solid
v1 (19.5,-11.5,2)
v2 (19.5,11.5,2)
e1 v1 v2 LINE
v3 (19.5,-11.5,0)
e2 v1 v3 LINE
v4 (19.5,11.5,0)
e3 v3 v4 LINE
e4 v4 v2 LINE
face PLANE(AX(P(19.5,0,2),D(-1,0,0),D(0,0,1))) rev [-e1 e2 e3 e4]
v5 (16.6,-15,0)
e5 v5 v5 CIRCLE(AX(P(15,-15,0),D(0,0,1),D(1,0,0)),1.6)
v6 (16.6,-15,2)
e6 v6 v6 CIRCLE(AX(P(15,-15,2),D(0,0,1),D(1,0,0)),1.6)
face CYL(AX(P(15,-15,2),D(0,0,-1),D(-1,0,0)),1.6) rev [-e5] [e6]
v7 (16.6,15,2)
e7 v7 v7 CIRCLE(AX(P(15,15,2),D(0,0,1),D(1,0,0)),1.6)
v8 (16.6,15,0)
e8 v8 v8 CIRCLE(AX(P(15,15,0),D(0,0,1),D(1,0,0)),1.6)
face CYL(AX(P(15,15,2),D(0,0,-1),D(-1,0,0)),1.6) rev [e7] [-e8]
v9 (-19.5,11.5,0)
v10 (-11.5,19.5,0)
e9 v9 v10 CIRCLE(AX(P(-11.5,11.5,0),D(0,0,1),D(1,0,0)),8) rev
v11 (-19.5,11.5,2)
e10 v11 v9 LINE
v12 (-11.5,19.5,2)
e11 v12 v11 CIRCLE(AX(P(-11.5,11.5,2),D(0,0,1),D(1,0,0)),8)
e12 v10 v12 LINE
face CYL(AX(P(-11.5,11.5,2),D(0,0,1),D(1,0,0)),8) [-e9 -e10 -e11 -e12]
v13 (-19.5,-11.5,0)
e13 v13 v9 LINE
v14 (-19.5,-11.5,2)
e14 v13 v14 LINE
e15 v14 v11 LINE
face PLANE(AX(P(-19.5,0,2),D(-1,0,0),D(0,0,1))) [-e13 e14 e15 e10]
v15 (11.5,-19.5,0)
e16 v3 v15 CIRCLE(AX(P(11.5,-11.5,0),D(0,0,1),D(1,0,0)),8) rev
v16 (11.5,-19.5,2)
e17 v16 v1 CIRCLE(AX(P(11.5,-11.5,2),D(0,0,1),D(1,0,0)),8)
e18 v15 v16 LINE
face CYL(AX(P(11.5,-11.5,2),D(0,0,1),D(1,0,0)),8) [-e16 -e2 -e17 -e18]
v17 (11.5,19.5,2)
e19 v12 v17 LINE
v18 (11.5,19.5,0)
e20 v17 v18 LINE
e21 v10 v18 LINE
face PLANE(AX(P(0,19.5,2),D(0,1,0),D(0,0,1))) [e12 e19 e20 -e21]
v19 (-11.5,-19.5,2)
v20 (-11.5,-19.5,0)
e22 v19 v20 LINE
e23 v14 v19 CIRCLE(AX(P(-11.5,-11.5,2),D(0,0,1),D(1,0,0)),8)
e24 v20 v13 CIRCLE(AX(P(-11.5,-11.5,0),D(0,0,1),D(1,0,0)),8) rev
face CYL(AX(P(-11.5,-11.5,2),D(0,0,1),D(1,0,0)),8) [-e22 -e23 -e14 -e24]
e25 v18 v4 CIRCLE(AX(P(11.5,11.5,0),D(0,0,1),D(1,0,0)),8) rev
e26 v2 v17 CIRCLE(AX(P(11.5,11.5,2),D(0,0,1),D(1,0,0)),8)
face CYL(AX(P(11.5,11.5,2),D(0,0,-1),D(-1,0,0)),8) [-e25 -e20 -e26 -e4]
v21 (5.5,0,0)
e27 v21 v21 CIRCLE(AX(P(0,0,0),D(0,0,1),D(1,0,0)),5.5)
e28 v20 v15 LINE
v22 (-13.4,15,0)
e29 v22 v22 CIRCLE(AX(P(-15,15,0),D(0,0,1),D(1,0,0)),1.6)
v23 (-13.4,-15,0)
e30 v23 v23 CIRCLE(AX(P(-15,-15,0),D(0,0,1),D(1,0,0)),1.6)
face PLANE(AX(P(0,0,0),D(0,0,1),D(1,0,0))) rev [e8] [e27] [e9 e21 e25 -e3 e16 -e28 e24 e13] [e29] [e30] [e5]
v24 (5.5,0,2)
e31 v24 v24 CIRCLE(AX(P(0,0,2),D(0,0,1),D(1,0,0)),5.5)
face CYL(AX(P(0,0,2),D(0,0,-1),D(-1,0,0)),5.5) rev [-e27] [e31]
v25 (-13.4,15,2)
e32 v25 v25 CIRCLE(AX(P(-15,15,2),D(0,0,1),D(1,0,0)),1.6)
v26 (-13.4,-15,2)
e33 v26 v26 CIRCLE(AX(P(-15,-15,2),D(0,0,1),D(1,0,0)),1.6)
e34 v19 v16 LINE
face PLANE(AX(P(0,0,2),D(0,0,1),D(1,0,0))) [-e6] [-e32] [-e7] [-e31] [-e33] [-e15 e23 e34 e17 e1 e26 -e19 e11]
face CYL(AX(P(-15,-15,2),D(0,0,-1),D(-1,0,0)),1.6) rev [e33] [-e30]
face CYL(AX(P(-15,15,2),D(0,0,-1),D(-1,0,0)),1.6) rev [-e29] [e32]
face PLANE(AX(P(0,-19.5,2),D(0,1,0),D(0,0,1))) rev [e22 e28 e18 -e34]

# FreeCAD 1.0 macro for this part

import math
import FreeCAD as App
import Part
import Sketcher

V = App.Vector


def edges_at(feature, points):
    """Names of the edges that pass closest to the given points."""
    edges = feature.Shape.Edges
    near = lambda p: min(range(len(edges)), key=lambda i: edges[i].distToShape(Part.Vertex(*p))[0])
    return sorted({f"Edge{near(p) + 1}" for p in points})


def add_polygon(sketch, points):
    """Adds a closed chain of lines whose ends are joined by coincident constraints."""
    first, n = sketch.GeometryCount, len(points)
    for a, b in zip(points, points[1:] + points[:1]):
        sketch.addGeometry(Part.LineSegment(App.Vector(*a, 0), App.Vector(*b, 0)), False)
    for i in range(n):
        sketch.addConstraint(Sketcher.Constraint("Coincident", first + i, 2, first + (i + 1) % n, 1))

doc = App.newDocument("Part")
body = doc.addObject("PartDesign::Body", "Body")

# Sketch on XY plane
sketch1 = body.newObject("Sketcher::SketchObject", "Sketch")
sketch1.AttachmentSupport = (doc.getObject("XY_Plane"), [""])
sketch1.MapMode = "FlatFace"
add_polygon(sketch1, [(-19.5, -19.5), (19.5, -19.5), (19.5, 19.5), (-19.5, 19.5)])  # lines 0-3
sketch1.addGeometry(Part.ArcOfCircle(Part.Circle(V(-15, 15, 0), V(0, 0, 1), 1.6), math.radians(180), math.radians(360)), False)  # 4
sketch1.addGeometry(Part.ArcOfCircle(Part.Circle(V(-15, 15, 0), V(0, 0, 1), 1.6), math.radians(90), math.radians(180)), False)  # 5
sketch1.addGeometry(Part.ArcOfCircle(Part.Circle(V(-15, 15, 0), V(0, 0, 1), 1.6), math.radians(0), math.radians(90)), False)  # 6
sketch1.addGeometry(Part.Circle(V(-15, -15, 0), V(0, 0, 1), 1.6), False)  # 7
sketch1.addGeometry(Part.Circle(V(15, -15, 0), V(0, 0, 1), 1.6), False)  # 8
sketch1.addGeometry(Part.Circle(V(0, 0, 0), V(0, 0, 1), 5.5), False)  # 9
sketch1.addGeometry(Part.Circle(V(15, 15, 0), V(0, 0, 1), 1.6), False)  # 10
sketch1.addConstraint([
    Sketcher.Constraint("Tangent", 4, 1, 5, 2),
    Sketcher.Constraint("Tangent", 5, 1, 6, 2),
    Sketcher.Constraint("Tangent", 6, 1, 4, 2),
    Sketcher.Constraint("Horizontal", 0),
    Sketcher.Constraint("Vertical", 1),
    Sketcher.Constraint("Horizontal", 2),
    Sketcher.Constraint("Vertical", 3),
    Sketcher.Constraint("Coincident", 9, 3, -1, 1),
    Sketcher.Constraint("Equal", 6, 7),
    Sketcher.Constraint("Equal", 7, 8),
    Sketcher.Constraint("Equal", 8, 10),
    Sketcher.Constraint("Symmetric", 4, 3, 8, 3, -1, 1),
    Sketcher.Constraint("Symmetric", 7, 3, 10, 3, -1, 1),
    Sketcher.Constraint("Symmetric", 0, 2, 2, 2, -1, 1),
    Sketcher.Constraint("Symmetric", 7, 3, 8, 3, -2),
    Sketcher.Constraint("Horizontal", 10, 3, 4, 1),
    Sketcher.Constraint("Horizontal", 4, 1, 6, 1),
    Sketcher.Constraint("Vertical", 7, 3, 5, 1),
    Sketcher.Constraint("Equal", 2, 1),
    Sketcher.Constraint("Diameter", 9, 11.0),
    Sketcher.Constraint("Diameter", 7, 3.2),
    Sketcher.Constraint("DistanceX", 0, 1, 0, 2, 39.0),
    Sketcher.Constraint("DistanceX", 4, 3, -1, 1, 15.0),
    Sketcher.Constraint("DistanceY", -1, 1, 4, 3, 15.0),
])
pad1 = body.newObject("PartDesign::Pad", "Pad")
pad1.Profile = sketch1
pad1.Length = 2
doc.recompute()

fillet = body.newObject("PartDesign::Fillet", "Fillet")
fillet.Base = (pad1, edges_at(pad1, [(-19.5, 19.5, 1)]))
fillet.Radius = 8
doc.recompute()

fillet2 = body.newObject("PartDesign::Fillet", "Fillet001")
fillet2.Base = (fillet, edges_at(fillet, [(19.5, 19.5, 1)]))
fillet2.Radius = 8
doc.recompute()

fillet3 = body.newObject("PartDesign::Fillet", "Fillet002")
fillet3.Base = (fillet2, edges_at(fillet2, [(-19.5, -19.5, 1)]))
fillet3.Radius = 8
doc.recompute()

fillet4 = body.newObject("PartDesign::Fillet", "Fillet003")
fillet4.Base = (fillet3, edges_at(fillet3, [(19.5, -19.5, 1)]))
fillet4.Radius = 8

doc.recompute()
